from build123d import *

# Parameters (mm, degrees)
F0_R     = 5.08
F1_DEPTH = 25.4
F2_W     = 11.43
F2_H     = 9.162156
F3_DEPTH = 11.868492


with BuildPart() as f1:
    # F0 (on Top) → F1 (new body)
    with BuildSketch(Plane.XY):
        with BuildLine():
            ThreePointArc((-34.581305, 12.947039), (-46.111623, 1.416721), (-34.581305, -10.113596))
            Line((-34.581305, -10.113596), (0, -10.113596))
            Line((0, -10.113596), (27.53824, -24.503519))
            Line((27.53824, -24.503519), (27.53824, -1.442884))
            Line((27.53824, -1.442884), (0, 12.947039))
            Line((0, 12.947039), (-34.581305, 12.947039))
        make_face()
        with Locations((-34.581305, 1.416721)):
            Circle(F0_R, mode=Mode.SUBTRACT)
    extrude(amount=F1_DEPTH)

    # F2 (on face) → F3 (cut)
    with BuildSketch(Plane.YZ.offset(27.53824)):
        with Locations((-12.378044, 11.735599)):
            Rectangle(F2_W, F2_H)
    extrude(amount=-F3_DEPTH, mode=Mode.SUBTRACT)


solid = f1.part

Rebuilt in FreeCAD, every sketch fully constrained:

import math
import FreeCAD as App
import Part
import Sketcher
from FreeCAD import Vector
Q = App.Units.Quantity


def add_polygon(sketch, points):
    """Adds a closed chain of lines whose ends are joined by coincident constraints."""
    first, n = sketch.GeometryCount, len(points)
    for a, b in zip(points, points[1:] + points[:1]):
        sketch.addGeometry(Part.LineSegment(App.Vector(*a, 0), App.Vector(*b, 0)), False)
    for i in range(n):
        sketch.addConstraint(Sketcher.Constraint("Coincident", first + i, 2, first + (i + 1) % n, 1))

doc = App.newDocument("Part")
body = doc.addObject("PartDesign::Body", "Body")

# Sketch on XY plane
sketch1 = doc.addObject("Sketcher::SketchObject", "Sketch")
body.addObject(sketch1)
sketch1.AttachmentSupport = (doc.XY_Plane, [""])
sketch1.MapMode = "FlatFace"
sketch1.addGeometry([
    Part.ArcOfCircle(Part.Circle(Vector(-35, 1, 0), Vector(0, 0, 1), 12), math.radians(90), math.radians(270)),  # 0
    Part.LineSegment(Vector(-35, -10, 0), Vector(0, -10, 0)),  # 1
    Part.LineSegment(Vector(0, -10, 0), Vector(28, -25, 0)),  # 2
    Part.LineSegment(Vector(28, -25, 0), Vector(28, -1, 0)),  # 3
    Part.LineSegment(Vector(28, -1, 0), Vector(0, 13, 0)),  # 4
    Part.LineSegment(Vector(0, 13, 0), Vector(-35, 13, 0)),  # 5
    Part.Circle(Vector(-35, 1, 0), Vector(0, 0, 1), 5),  # 6
], False)
sketch1.addConstraint([
    Sketcher.Constraint("Tangent", 0, 2, 1, 1),
    Sketcher.Constraint("Coincident", 1, 2, 2, 1),
    Sketcher.Constraint("Coincident", 2, 2, 3, 1),
    Sketcher.Constraint("Coincident", 3, 2, 4, 1),
    Sketcher.Constraint("Coincident", 4, 2, 5, 1),
    Sketcher.Constraint("Tangent", 5, 2, 0, 1),
    Sketcher.Constraint("Horizontal", 1),
    Sketcher.Constraint("Vertical", 3),
    Sketcher.Constraint("Horizontal", 5),
    Sketcher.Constraint("Coincident", 6, 3, 0, 3),
    Sketcher.Constraint("PointOnObject", 1, 2, -2),
    Sketcher.Constraint("PointOnObject", 4, 2, -2),
    Sketcher.Constraint("Parallel", 2, 4),
    Sketcher.Constraint("Diameter", 6, Q("0.4 in")),
    Sketcher.Constraint("Radius", 0, 11.530318),
    Sketcher.Constraint("Distance", 2, 31.071282),
    Sketcher.Constraint("DistanceX", 1, 1, 1, 2, 34.581305),
    Sketcher.Constraint("DistanceY", -1, 1, 0, 3, 1.416721),
    Sketcher.Constraint("DistanceX", -1, 1, 2, 2, 27.53824),
])
pad1 = doc.addObject("PartDesign::Pad", "Pad")
body.addObject(pad1)
pad1.Profile = sketch1
pad1.Length = Q("1 in")

# Sketch on YZ plane
sketch2 = doc.addObject("Sketcher::SketchObject", "Sketch001")
body.addObject(sketch2)
sketch2.AttachmentSupport = (doc.YZ_Plane, [""])
sketch2.MapMode = "FlatFace"
sketch2.AttachmentOffset = App.Placement(Vector(0, 0, 27.53824), App.Rotation())
add_polygon(sketch2, [(-18, 16), (-18, 7), (-7, 7), (-7, 16)])  # lines 0-3
sketch2.addConstraint([
    Sketcher.Constraint("Vertical", 0),
    Sketcher.Constraint("Horizontal", 1),
    Sketcher.Constraint("Vertical", 2),
    Sketcher.Constraint("Horizontal", 3),
    Sketcher.Constraint("DistanceX", 1, 1, 1, 2, Q("0.45 in")),
    Sketcher.Constraint("DistanceY", 0, 2, 0, 1, 9.162156),
    Sketcher.Constraint("DistanceY", -1, 1, 0, 2, 7.154521),
    Sketcher.Constraint("DistanceX", 0, 2, -1, 1, 18.093044),
])
pocket1 = doc.addObject("PartDesign::Pocket", "Pocket")
body.addObject(pocket1)
pocket1.Profile = sketch2
pocket1.Length = 11.868492

doc.recompute()
